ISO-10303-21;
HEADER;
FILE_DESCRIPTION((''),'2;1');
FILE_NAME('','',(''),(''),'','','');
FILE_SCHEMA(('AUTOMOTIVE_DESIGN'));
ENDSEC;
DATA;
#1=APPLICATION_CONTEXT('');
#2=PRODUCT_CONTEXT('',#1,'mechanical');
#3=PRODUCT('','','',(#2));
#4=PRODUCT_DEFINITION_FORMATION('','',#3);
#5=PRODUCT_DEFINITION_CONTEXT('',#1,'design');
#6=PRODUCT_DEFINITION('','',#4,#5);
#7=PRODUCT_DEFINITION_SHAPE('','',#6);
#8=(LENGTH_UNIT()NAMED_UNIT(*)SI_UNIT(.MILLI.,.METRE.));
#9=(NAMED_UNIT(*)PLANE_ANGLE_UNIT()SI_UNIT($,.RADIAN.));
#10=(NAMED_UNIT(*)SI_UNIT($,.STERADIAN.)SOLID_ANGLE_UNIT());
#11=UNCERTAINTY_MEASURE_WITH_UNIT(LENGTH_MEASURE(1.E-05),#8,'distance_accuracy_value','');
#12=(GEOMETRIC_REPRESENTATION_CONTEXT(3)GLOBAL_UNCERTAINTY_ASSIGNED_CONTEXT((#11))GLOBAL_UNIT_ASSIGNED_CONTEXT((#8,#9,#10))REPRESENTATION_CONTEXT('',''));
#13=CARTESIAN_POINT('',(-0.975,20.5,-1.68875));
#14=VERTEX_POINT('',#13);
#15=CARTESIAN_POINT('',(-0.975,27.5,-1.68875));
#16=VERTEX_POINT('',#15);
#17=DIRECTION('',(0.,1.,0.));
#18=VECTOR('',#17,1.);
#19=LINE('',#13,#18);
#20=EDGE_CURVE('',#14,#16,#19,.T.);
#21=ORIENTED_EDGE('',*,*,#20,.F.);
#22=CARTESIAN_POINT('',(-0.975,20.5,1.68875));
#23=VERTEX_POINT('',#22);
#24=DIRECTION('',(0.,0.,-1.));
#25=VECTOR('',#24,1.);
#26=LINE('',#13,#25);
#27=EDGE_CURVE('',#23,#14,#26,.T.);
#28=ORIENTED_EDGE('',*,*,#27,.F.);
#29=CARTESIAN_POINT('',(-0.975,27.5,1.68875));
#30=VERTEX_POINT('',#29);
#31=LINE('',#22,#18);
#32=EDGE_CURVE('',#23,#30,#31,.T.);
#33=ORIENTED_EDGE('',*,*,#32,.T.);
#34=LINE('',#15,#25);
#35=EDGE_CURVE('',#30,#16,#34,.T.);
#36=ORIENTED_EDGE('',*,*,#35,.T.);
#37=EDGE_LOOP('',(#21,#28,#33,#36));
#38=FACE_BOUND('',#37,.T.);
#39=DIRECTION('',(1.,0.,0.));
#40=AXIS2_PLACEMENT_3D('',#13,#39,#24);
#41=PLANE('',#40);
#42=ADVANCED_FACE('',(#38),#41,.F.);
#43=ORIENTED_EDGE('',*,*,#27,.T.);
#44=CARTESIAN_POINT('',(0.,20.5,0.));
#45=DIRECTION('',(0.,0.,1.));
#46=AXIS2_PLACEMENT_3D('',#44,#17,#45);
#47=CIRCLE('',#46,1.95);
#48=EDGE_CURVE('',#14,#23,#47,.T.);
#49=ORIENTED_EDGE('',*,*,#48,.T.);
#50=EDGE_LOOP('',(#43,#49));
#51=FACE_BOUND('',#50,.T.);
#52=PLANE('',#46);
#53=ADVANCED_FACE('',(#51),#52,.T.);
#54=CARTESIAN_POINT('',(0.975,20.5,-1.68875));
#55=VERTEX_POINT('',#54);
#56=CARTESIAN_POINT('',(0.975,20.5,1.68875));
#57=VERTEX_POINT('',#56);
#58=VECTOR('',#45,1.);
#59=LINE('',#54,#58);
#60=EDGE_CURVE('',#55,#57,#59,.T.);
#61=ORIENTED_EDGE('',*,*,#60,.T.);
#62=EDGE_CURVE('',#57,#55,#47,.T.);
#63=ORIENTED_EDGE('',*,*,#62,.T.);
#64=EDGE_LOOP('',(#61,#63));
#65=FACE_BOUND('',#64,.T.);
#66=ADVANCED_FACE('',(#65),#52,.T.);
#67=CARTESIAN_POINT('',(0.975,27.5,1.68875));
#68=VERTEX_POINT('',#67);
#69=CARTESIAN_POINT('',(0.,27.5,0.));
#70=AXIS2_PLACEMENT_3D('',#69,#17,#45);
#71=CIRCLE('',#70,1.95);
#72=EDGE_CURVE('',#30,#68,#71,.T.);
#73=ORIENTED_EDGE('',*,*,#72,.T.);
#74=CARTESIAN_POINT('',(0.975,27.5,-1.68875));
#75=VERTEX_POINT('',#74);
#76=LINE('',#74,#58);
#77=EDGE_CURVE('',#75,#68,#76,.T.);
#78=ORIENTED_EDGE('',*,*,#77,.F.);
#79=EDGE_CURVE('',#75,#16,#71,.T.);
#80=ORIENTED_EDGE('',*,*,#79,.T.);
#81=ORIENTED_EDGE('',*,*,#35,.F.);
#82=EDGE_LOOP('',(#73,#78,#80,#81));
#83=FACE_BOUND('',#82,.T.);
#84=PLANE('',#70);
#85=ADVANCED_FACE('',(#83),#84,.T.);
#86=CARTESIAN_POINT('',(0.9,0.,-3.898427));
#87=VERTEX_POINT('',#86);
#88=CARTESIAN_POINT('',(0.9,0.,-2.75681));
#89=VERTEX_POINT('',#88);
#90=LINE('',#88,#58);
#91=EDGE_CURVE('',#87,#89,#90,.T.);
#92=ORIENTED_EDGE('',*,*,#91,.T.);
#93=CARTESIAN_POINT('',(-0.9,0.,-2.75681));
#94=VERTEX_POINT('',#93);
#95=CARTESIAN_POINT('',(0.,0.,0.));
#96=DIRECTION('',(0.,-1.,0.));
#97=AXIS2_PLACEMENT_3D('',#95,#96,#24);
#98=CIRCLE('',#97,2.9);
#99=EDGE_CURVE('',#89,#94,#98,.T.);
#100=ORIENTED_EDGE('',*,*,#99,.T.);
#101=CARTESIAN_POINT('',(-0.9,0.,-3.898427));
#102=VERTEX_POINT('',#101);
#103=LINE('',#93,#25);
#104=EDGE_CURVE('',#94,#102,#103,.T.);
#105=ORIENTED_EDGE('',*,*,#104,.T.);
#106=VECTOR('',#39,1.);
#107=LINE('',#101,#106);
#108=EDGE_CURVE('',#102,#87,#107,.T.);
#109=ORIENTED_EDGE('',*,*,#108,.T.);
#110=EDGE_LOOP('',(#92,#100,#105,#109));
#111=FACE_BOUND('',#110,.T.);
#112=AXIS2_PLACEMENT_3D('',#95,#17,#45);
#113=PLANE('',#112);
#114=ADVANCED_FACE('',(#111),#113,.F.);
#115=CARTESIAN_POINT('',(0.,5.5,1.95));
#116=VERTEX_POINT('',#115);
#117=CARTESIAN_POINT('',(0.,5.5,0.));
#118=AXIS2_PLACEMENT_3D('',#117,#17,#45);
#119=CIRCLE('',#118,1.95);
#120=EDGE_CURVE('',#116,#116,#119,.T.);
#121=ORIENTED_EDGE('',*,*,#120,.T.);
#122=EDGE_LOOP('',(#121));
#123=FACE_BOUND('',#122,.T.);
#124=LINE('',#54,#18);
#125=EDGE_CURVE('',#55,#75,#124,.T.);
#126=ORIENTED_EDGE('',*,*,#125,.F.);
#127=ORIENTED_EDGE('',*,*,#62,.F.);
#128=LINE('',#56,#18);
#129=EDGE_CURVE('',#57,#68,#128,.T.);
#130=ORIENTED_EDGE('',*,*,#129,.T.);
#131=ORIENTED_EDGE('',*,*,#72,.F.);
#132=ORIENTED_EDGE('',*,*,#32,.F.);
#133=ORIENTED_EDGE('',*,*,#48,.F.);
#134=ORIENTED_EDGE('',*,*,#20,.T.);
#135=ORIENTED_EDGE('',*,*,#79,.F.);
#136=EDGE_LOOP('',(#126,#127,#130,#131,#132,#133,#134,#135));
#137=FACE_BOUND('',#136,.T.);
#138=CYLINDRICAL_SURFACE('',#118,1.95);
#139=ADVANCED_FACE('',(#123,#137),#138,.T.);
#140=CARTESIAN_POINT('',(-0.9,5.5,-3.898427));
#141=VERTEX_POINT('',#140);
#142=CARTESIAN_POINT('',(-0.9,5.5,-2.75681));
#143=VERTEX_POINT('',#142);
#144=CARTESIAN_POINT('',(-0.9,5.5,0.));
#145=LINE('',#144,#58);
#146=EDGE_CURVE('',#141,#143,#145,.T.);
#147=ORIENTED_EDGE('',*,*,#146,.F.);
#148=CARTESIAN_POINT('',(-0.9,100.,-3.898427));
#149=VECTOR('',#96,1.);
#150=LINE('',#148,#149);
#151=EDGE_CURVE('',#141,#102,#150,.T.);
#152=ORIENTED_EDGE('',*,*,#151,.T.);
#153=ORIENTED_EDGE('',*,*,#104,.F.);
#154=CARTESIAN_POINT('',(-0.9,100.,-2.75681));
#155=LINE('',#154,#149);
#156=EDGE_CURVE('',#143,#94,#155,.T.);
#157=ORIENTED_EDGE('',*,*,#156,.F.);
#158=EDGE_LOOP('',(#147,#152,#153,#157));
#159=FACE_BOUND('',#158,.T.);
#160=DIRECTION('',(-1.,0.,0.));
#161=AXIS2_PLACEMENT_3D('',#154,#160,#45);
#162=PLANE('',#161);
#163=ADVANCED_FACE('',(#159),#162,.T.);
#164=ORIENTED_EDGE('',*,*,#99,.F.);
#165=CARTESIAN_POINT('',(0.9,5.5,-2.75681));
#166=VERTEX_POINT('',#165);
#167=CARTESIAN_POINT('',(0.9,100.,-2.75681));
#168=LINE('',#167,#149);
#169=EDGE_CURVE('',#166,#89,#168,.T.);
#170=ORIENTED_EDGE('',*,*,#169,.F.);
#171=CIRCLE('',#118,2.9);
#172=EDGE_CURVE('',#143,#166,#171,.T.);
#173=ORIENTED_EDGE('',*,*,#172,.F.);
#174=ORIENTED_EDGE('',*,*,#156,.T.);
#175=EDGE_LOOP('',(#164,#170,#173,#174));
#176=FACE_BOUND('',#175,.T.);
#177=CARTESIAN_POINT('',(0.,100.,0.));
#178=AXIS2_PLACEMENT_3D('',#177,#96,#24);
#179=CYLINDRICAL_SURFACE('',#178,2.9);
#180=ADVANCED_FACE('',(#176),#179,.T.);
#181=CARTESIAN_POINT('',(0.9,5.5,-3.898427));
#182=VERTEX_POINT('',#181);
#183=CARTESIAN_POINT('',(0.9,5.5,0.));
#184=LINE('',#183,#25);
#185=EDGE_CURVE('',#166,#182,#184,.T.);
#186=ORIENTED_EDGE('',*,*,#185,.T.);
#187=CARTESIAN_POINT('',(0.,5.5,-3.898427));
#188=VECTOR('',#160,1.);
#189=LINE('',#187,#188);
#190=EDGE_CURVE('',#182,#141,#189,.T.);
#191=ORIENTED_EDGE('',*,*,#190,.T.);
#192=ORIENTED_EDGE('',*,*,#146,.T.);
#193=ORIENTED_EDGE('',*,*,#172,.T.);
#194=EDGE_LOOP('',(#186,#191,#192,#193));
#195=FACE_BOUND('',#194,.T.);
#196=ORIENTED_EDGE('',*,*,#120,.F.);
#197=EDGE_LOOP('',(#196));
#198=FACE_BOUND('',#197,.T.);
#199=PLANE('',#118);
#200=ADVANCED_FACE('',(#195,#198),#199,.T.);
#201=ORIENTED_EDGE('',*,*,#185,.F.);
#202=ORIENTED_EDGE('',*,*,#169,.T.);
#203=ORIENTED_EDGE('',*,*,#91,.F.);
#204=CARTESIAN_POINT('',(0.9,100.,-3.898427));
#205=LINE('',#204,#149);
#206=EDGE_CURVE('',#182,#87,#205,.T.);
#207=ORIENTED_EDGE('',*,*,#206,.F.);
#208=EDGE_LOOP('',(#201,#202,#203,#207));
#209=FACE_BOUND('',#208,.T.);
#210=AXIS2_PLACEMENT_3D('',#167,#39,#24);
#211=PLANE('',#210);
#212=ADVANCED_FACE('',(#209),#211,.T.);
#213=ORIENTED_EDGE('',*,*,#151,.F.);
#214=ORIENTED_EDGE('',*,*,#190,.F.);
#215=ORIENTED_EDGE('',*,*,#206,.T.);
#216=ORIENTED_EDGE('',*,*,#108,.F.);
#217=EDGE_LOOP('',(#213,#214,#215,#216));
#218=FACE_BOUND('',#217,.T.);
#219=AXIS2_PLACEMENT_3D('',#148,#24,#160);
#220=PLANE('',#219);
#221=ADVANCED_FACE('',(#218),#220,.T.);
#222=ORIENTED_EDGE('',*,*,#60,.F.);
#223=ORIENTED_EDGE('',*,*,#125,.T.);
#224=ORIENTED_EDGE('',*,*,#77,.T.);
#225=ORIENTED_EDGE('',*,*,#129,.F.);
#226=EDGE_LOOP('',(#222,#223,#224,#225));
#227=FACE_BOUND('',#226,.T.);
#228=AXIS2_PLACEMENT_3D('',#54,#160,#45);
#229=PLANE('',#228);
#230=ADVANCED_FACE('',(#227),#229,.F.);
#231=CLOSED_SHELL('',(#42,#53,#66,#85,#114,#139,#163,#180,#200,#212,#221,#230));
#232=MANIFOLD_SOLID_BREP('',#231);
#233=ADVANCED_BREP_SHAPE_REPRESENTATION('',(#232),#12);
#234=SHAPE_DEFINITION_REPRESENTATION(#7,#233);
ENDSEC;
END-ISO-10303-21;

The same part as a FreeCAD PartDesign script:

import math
import FreeCAD as App
import Part
import Sketcher
from FreeCAD import Vector
Q = App.Units.Quantity

doc = App.newDocument("Part")
body = doc.addObject("PartDesign::Body", "Body")

# Sketch on XZ plane
sketch1 = doc.addObject("Sketcher::SketchObject", "Sketch")
body.addObject(sketch1)
sketch1.AttachmentSupport = (doc.XZ_Plane, [""])
sketch1.MapMode = "FlatFace"
sketch1.addGeometry(Part.ArcOfCircle(Part.Circle(Vector(0, 0, 0), Vector(0, 0, 1), 3), math.radians(-70.528779), math.radians(250.528779)), False)
sketch1.addGeometry(Part.LineSegment(Vector(1, -2.828427, 0), Vector(1, -3.998427, 0)), False)
sketch1.addGeometry(Part.LineSegment(Vector(1, -3.998427, 0), Vector(-1, -3.998427, 0)), False)
sketch1.addGeometry(Part.LineSegment(Vector(-1, -3.998427, 0), Vector(-1, -2.828427, 0)), False)
sketch1.addConstraint(Sketcher.Constraint("Coincident", 0, 1, 1, 1))
sketch1.addConstraint(Sketcher.Constraint("Coincident", 1, 2, 2, 1))
sketch1.addConstraint(Sketcher.Constraint("Coincident", 2, 2, 3, 1))
sketch1.addConstraint(Sketcher.Constraint("Coincident", 3, 2, 0, 2))
sketch1.addConstraint(Sketcher.Constraint("Vertical", 1))
sketch1.addConstraint(Sketcher.Constraint("Horizontal", 2))
sketch1.addConstraint(Sketcher.Constraint("Vertical", 3))
sketch1.addConstraint(Sketcher.Constraint("Coincident", 0, 3, -1, 1))
sketch1.addConstraint(Sketcher.Constraint("Horizontal", 0, 1, 3, 2))
sketch1.addConstraint(Sketcher.Constraint("Radius", 0, Q("3 mm")))
sketch1.addConstraint(Sketcher.Constraint("DistanceX", 2, 2, 2, 1, Q("2 mm")))
sketch1.addConstraint(Sketcher.Constraint("DistanceY", 1, 2, 1, 1, Q("1.17 mm")))
pad1 = doc.addObject("PartDesign::Pad", "Pad")
body.addObject(pad1)
pad1.Profile = sketch1
pad1.Length = 27.5
pad1.Reversed = True

# Sketch on XZ plane
sketch2 = doc.addObject("Sketcher::SketchObject", "Sketch001")
body.addObject(sketch2)
sketch2.AttachmentSupport = (doc.XZ_Plane, [""])
sketch2.MapMode = "FlatFace"
sketch2.AttachmentOffset = App.Placement(Vector(0, 0, -27.5), App.Rotation())
sketch2.addGeometry(Part.Circle(Vector(0, 0, 0), Vector(0, 0, 1), 6.16615), False)
sketch2.addGeometry(Part.Circle(Vector(0, 0, 0), Vector(0, 0, 1), 1.95), False)
sketch2.addConstraint(Sketcher.Constraint("Coincident", 0, 3, -1, 1))
sketch2.addConstraint(Sketcher.Constraint("Coincident", 1, 3, -1, 1))
sketch2.addConstraint(Sketcher.Constraint("Diameter", 1, Q("3.9 mm")))
sketch2.addConstraint(Sketcher.Constraint("Diameter", 0, Q("12.332301 mm")))
pocket1 = doc.addObject("PartDesign::Pocket", "Pocket")
body.addObject(pocket1)
pocket1.Profile = sketch2
pocket1.Length = 22
pocket1.Reversed = True

# Sketch on XZ plane
sketch3 = doc.addObject("Sketcher::SketchObject", "Sketch002")
body.addObject(sketch3)
sketch3.AttachmentSupport = (doc.XZ_Plane, [""])
sketch3.MapMode = "FlatFace"
sketch3.AttachmentOffset = App.Placement(Vector(0, 0, -27.5), App.Rotation())
sketch3.addGeometry(Part.LineSegment(Vector(-0.975, 1.68875, 0), Vector(-0.975, -1.68875, 0)), False)
sketch3.addGeometry(Part.ArcOfCircle(Part.Circle(Vector(0, 0, 0), Vector(0, 0, 1), 1.95), math.radians(120), math.radians(240)), False)
sketch3.addGeometry(Part.LineSegment(Vector(0.975, -1.68875, 0), Vector(0.975, 1.68875, 0)), False)
sketch3.addGeometry(Part.ArcOfCircle(Part.Circle(Vector(0, 0, 0), Vector(0, 0, 1), 1.95), math.radians(-60), math.radians(60)), False)
sketch3.addConstraint(Sketcher.Constraint("Coincident", 0, 1, 1, 1))
sketch3.addConstraint(Sketcher.Constraint("Coincident", 1, 2, 0, 2))
sketch3.addConstraint(Sketcher.Constraint("Coincident", 2, 1, 3, 1))
sketch3.addConstraint(Sketcher.Constraint("Coincident", 3, 2, 2, 2))
sketch3.addConstraint(Sketcher.Constraint("Vertical", 0))
sketch3.addConstraint(Sketcher.Constraint("Vertical", 2))
sketch3.addConstraint(Sketcher.Constraint("Coincident", 1, 3, -1, 1))
sketch3.addConstraint(Sketcher.Constraint("Coincident", 3, 3, -1, 1))
sketch3.addConstraint(Sketcher.Constraint("Equal", 1, 3))
sketch3.addConstraint(Sketcher.Constraint("Horizontal", 1, 2, 2, 1))
sketch3.addConstraint(Sketcher.Constraint("Radius", 1, Q("1.95 mm")))
sketch3.addConstraint(Sketcher.Constraint("DistanceX", 1, 2, 2, 1, Q("1.95 mm")))
pocket2 = doc.addObject("PartDesign::Pocket", "Pocket001")
body.addObject(pocket2)
pocket2.Profile = sketch3
pocket2.Length = 7
pocket2.Reversed = True

# Sketch on XZ plane
sketch4 = doc.addObject("Sketcher::SketchObject", "Sketch003")
body.addObject(sketch4)
sketch4.AttachmentSupport = (doc.XZ_Plane, [""])
sketch4.MapMode = "FlatFace"
sketch4.addGeometry(Part.LineSegment(Vector(-1, -3.998427, 0), Vector(1, -3.998427, 0)), False)
sketch4.addGeometry(Part.LineSegment(Vector(1, -3.998427, 0), Vector(1, -2.828427, 0)), False)
sketch4.addGeometry(Part.ArcOfCircle(Part.Circle(Vector(0, 0, 0), Vector(0, 0, 1), 3), math.radians(-70.528779), math.radians(250.528779)), False)
sketch4.addGeometry(Part.LineSegment(Vector(-1, -2.828427, 0), Vector(-1, -3.998427, 0)), False)
sketch4.addGeometry(Part.LineSegment(Vector(-0.9, -3.898427, 0), Vector(-0.9, -2.75681, 0)), False)
sketch4.addGeometry(Part.ArcOfCircle(Part.Circle(Vector(0, 0, 0), Vector(0, 0, 1), 2.9), math.radians(-71.919987), math.radians(251.919987)), False)
sketch4.addGeometry(Part.LineSegment(Vector(0.9, -2.75681, 0), Vector(0.9, -3.898427, 0)), False)
sketch4.addGeometry(Part.LineSegment(Vector(0.9, -3.898427, 0), Vector(-0.9, -3.898427, 0)), False)
sketch4.addConstraint(Sketcher.Constraint("Coincident", 0, 2, 1, 1))
sketch4.addConstraint(Sketcher.Constraint("Coincident", 1, 2, 2, 1))
sketch4.addConstraint(Sketcher.Constraint("Coincident", 2, 2, 3, 1))
sketch4.addConstraint(Sketcher.Constraint("Coincident", 3, 2, 0, 1))
sketch4.addConstraint(Sketcher.Constraint("Coincident", 4, 2, 5, 2))
sketch4.addConstraint(Sketcher.Constraint("Coincident", 5, 1, 6, 1))
sketch4.addConstraint(Sketcher.Constraint("Coincident", 6, 2, 7, 1))
sketch4.addConstraint(Sketcher.Constraint("Coincident", 7, 2, 4, 1))
sketch4.addConstraint(Sketcher.Constraint("Horizontal", 0))
sketch4.addConstraint(Sketcher.Constraint("Vertical", 1))
sketch4.addConstraint(Sketcher.Constraint("Vertical", 3))
sketch4.addConstraint(Sketcher.Constraint("Vertical", 4))
sketch4.addConstraint(Sketcher.Constraint("Vertical", 6))
sketch4.addConstraint(Sketcher.Constraint("Horizontal", 7))
sketch4.addConstraint(Sketcher.Constraint("Coincident", 2, 3, -1, 1))
sketch4.addConstraint(Sketcher.Constraint("Coincident", 5, 3, -1, 1))
sketch4.addConstraint(Sketcher.Constraint("Horizontal", 1, 2, 2, 2))
sketch4.addConstraint(Sketcher.Constraint("Horizontal", 4, 2, 5, 1))
sketch4.addConstraint(Sketcher.Constraint("Radius", 2, Q("3 mm")))
sketch4.addConstraint(Sketcher.Constraint("Radius", 5, Q("2.9 mm")))
sketch4.addConstraint(Sketcher.Constraint("DistanceX", 0, 1, 0, 2, Q("2 mm")))
sketch4.addConstraint(Sketcher.Constraint("DistanceX", 7, 2, 7, 1, Q("1.8 mm")))
sketch4.addConstraint(Sketcher.Constraint("DistanceY", 1, 1, 1, 2, Q("1.17 mm")))
sketch4.addConstraint(Sketcher.Constraint("DistanceY", 0, 2, 6, 2, Q("0.1 mm")))
pocket3 = doc.addObject("PartDesign::Pocket", "Pocket002")
body.addObject(pocket3)
pocket3.Profile = sketch4
pocket3.Length = 100

doc.recompute()
